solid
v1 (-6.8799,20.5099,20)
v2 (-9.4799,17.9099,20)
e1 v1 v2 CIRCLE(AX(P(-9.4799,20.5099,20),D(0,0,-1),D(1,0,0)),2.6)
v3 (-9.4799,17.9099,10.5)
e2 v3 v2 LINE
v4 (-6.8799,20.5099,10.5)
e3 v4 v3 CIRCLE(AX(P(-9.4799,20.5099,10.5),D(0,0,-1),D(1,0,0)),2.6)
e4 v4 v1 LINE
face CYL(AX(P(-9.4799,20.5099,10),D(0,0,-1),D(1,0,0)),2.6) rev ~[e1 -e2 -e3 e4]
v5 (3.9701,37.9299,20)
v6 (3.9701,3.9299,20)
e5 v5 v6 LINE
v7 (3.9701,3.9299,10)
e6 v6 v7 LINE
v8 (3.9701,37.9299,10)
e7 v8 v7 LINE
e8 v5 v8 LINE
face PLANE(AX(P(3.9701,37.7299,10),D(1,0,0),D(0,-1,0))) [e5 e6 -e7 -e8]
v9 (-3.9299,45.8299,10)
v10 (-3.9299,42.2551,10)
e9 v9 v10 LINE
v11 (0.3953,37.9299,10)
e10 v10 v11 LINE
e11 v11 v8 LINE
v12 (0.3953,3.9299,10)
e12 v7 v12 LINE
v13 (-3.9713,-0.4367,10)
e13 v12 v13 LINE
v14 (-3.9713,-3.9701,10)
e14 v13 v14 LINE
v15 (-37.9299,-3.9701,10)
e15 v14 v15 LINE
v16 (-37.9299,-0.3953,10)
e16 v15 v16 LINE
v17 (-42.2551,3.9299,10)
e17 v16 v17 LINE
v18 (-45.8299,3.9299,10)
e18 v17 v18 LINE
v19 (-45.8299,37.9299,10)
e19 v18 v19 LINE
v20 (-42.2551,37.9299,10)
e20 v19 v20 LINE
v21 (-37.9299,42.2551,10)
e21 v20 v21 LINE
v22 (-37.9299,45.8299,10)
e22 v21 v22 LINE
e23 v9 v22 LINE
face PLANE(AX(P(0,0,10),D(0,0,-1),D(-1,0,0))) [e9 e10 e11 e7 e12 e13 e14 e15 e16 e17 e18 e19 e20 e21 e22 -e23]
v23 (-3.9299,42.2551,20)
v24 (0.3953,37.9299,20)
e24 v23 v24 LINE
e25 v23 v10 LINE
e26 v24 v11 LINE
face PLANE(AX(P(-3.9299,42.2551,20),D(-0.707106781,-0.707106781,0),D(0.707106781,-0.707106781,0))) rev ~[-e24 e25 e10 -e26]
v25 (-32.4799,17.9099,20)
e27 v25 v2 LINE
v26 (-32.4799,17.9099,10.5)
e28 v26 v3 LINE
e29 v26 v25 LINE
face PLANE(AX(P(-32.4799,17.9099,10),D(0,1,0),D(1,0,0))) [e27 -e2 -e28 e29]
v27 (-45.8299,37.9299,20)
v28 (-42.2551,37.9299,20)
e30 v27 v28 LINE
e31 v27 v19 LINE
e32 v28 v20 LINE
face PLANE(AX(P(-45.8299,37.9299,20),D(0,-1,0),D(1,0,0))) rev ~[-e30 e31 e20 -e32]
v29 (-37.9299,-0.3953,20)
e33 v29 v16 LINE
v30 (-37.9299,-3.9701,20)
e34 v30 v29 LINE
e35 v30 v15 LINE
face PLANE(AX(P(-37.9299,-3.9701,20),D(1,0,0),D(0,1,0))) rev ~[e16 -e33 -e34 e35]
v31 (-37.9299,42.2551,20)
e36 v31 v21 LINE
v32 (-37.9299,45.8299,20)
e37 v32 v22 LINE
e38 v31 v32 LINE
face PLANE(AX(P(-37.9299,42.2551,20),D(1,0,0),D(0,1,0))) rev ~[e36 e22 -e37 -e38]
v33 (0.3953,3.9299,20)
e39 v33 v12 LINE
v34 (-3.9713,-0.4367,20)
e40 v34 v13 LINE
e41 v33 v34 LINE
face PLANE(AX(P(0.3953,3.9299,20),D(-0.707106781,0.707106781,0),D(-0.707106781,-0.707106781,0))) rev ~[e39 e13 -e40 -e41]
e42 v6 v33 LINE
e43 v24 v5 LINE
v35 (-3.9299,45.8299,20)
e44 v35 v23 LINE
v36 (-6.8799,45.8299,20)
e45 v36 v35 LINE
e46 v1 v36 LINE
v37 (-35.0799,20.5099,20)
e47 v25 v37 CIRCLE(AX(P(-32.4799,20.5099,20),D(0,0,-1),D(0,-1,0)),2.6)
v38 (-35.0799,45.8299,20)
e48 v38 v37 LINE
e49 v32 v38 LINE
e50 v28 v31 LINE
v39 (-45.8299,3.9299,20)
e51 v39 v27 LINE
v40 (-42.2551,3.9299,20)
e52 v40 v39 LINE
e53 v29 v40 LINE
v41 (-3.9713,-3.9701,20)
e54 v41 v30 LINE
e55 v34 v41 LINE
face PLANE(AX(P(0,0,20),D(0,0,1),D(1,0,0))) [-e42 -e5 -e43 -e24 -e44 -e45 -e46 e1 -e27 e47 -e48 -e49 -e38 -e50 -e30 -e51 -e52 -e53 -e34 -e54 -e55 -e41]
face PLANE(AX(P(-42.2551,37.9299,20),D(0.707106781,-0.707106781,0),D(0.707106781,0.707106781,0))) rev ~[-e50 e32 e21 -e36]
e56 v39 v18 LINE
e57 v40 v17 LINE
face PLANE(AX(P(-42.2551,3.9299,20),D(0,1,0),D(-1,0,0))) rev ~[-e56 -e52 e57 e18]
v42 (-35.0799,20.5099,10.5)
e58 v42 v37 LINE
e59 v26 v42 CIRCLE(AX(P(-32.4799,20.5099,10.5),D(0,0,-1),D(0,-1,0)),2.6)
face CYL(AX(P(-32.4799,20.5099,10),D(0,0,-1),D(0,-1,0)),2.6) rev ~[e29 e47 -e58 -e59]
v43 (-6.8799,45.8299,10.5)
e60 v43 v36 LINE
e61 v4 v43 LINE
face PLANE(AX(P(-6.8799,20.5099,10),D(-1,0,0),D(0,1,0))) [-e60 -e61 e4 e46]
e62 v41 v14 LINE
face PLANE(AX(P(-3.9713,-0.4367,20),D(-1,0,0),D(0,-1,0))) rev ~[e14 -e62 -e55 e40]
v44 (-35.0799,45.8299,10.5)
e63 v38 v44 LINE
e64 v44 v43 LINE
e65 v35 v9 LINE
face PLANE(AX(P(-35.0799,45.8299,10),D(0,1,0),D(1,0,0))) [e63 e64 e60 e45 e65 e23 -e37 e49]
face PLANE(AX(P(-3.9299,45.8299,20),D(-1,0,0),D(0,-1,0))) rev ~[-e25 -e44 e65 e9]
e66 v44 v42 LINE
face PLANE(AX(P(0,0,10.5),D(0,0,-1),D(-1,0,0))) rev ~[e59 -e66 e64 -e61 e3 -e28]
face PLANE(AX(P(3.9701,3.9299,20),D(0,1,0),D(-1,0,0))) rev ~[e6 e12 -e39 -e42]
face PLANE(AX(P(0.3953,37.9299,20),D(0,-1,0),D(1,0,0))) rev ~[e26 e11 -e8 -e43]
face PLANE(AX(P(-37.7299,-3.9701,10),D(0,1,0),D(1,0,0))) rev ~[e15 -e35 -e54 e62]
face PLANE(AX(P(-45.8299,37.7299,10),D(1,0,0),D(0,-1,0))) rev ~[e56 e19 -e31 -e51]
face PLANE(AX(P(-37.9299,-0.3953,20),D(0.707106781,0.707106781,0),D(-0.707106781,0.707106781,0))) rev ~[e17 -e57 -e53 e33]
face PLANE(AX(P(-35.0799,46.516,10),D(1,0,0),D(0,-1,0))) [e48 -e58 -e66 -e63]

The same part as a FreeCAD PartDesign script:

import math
import FreeCAD as App
import Part
import Sketcher

V = App.Vector
Q = App.Units.Quantity


def add_polygon(sketch, points):
    """Adds a closed chain of lines whose ends are joined by coincident constraints."""
    first, n = sketch.GeometryCount, len(points)
    for a, b in zip(points, points[1:] + points[:1]):
        sketch.addGeometry(Part.LineSegment(App.Vector(*a, 0), App.Vector(*b, 0)), False)
    for i in range(n):
        sketch.addConstraint(Sketcher.Constraint("Coincident", first + i, 2, first + (i + 1) % n, 1))

doc = App.newDocument("Part")
body = doc.addObject("PartDesign::Body", "Body")

# Sketch on XY plane
sketch1 = doc.addObject("Sketcher::SketchObject", "Sketch")
body.addObject(sketch1)
sketch1.AttachmentSupport = (doc.XY_Plane, [""])
sketch1.MapMode = "FlatFace"
sketch1.AttachmentOffset = App.Placement(V(0, 0, 10), App.Rotation())
add_polygon(sketch1, [(-4.171, -0.354), (0.312, 4.13), (3.97, 4.13), (3.97, 37.73), (0.312, 37.73), (-4.13, 42.172), (-4.13, 45.83), (-37.73, 45.83), (-37.73, 42.172), (-42.172, 37.73), (-45.83, 37.73), (-45.83, 4.13), (-42.172, 4.13), (-37.689, -0.354), (-37.73, -0.354), (-37.73, -3.97), (-4.171, -3.97)])  # lines 0-16
sketch1.addConstraint([
    Sketcher.Constraint("Horizontal", 1),
    Sketcher.Constraint("Vertical", 2),
    Sketcher.Constraint("Horizontal", 3),
    Sketcher.Constraint("Vertical", 5),
    Sketcher.Constraint("Horizontal", 6),
    Sketcher.Constraint("Vertical", 7),
    Sketcher.Constraint("Horizontal", 9),
    Sketcher.Constraint("Vertical", 10),
    Sketcher.Constraint("Horizontal", 11),
    Sketcher.Constraint("Horizontal", 13),
    Sketcher.Constraint("Vertical", 14),
    Sketcher.Constraint("Horizontal", 15),
    Sketcher.Constraint("Vertical", 16),
    Sketcher.Constraint("Perpendicular", 0, 4),
    Sketcher.Constraint("Perpendicular", 4, 8),
    Sketcher.Constraint("Perpendicular", 8, 12),
    Sketcher.Constraint("Horizontal", 4, 2, 7, 2),
    Sketcher.Constraint("Horizontal", 3, 2, 8, 2),
    Sketcher.Constraint("Horizontal", 1, 2, 10, 2),
    Sketcher.Constraint("Horizontal", 13, 2, 16, 2),
    Sketcher.Constraint("Vertical", 0, 2, 3, 2),
    Sketcher.Constraint("Vertical", 8, 2, 11, 2),
    Sketcher.Constraint("Vertical", 7, 2, 13, 2),
    Sketcher.Constraint("Equal", 3, 9),
    Sketcher.Constraint("Equal", 6, 2),
    Sketcher.Constraint("Equal", 11, 5),
    Sketcher.Constraint("Equal", 4, 8),
    Sketcher.Constraint("DistanceX", 6, 2, 6, 1, Q("33.6 mm")),
    Sketcher.Constraint("DistanceX", 4, 2, 2, 2, Q("8.1 mm")),
    Sketcher.Constraint("DistanceY", 14, 2, 11, 2, Q("8.1 mm")),
    Sketcher.Constraint("DistanceY", -1, 1, 0, 2, Q("4.13 mm")),
    Sketcher.Constraint("DistanceX", -1, 1, 1, 2, Q("3.97 mm")),
    Sketcher.Constraint("Distance", 0, Q("6.341 mm")),
    Sketcher.Constraint("DistanceX", 1, 1, 1, 2, Q("3.6577 mm")),
])
pad1 = doc.addObject("PartDesign::Pad", "Pad")
body.addObject(pad1)
pad1.Profile = sketch1
pad1.Length = 10

# Sketch on XY plane
sketch2 = doc.addObject("Sketcher::SketchObject", "Sketch001")
body.addObject(sketch2)
sketch2.AttachmentSupport = (doc.XY_Plane, [""])
sketch2.MapMode = "FlatFace"
sketch2.AttachmentOffset = App.Placement(V(0, 0, 20), App.Rotation())
add_polygon(sketch2, [(3.97, 3.93), (3.97, 4.13), (0.312, 4.13), (-4.171, -0.354), (-4.171, -3.97), (-3.971, -3.97), (-3.971, -0.437), (0.395, 3.93)])  # lines 0-7
add_polygon(sketch2, [(-3.93, 45.83), (-4.13, 45.83), (-4.13, 42.172), (0.312, 37.73), (3.97, 37.73), (3.97, 37.93), (0.395, 37.93), (-3.93, 42.255)])  # lines 8-15
add_polygon(sketch2, [(-42.172, 37.73), (-37.73, 42.172), (-37.73, 45.83), (-37.93, 45.83), (-37.93, 42.255), (-42.255, 37.93), (-45.83, 37.93), (-45.83, 37.73)])  # lines 16-23
add_polygon(sketch2, [(-42.172, 4.13), (-45.83, 4.13), (-45.83, 3.93), (-42.255, 3.93), (-37.93, -0.395), (-37.93, -3.97), (-37.73, -3.97), (-37.73, -0.354), (-37.688, -0.354)])  # lines 24-32
sketch2.addConstraint([
    Sketcher.Constraint("Vertical", 0),
    Sketcher.Constraint("Horizontal", 1),
    Sketcher.Constraint("Vertical", 3),
    Sketcher.Constraint("Horizontal", 4),
    Sketcher.Constraint("Vertical", 5),
    Sketcher.Constraint("Horizontal", 7),
    Sketcher.Constraint("Horizontal", 8),
    Sketcher.Constraint("Vertical", 9),
    Sketcher.Constraint("Horizontal", 11),
    Sketcher.Constraint("Vertical", 12),
    Sketcher.Constraint("Horizontal", 13),
    Sketcher.Constraint("Vertical", 15),
    Sketcher.Constraint("Vertical", 17),
    Sketcher.Constraint("Horizontal", 18),
    Sketcher.Constraint("Vertical", 19),
    Sketcher.Constraint("Horizontal", 21),
    Sketcher.Constraint("Vertical", 22),
    Sketcher.Constraint("Horizontal", 23),
    Sketcher.Constraint("Horizontal", 24),
    Sketcher.Constraint("Vertical", 25),
    Sketcher.Constraint("Horizontal", 26),
    Sketcher.Constraint("Vertical", 28),
    Sketcher.Constraint("Horizontal", 29),
    Sketcher.Constraint("Vertical", 30),
    Sketcher.Constraint("Horizontal", 31),
    Sketcher.Constraint("Parallel", 2, 6),
    Sketcher.Constraint("Perpendicular", 6, 10),
    Sketcher.Constraint("Parallel", 10, 14),
    Sketcher.Constraint("Perpendicular", 14, 16),
    Sketcher.Constraint("Parallel", 16, 20),
    Sketcher.Constraint("Perpendicular", 20, 27),
    Sketcher.Constraint("Parallel", 27, 32),
    Sketcher.Constraint("Horizontal", 9, 2, 16, 2),
    Sketcher.Constraint("Horizontal", 15, 2, 17, 2),
    Sketcher.Constraint("Horizontal", 14, 2, 19, 2),
    Sketcher.Constraint("Horizontal", 13, 2, 20, 2),
    Sketcher.Constraint("Horizontal", 11, 2, 22, 2),
    Sketcher.Constraint("Horizontal", 1, 2, 24, 2),
    Sketcher.Constraint("Horizontal", 7, 2, 25, 2),
    Sketcher.Constraint("Horizontal", 4, 2, 28, 2),
    Sketcher.Constraint("Horizontal", 2, 2, 30, 2),
    Sketcher.Constraint("Vertical", 1, 2, 10, 2),
    Sketcher.Constraint("Vertical", 7, 2, 11, 2),
    Sketcher.Constraint("Vertical", 6, 2, 13, 2),
    Sketcher.Constraint("Vertical", 22, 2, 24, 2),
    Sketcher.Constraint("Vertical", 20, 2, 26, 2),
    Sketcher.Constraint("Vertical", 19, 2, 27, 2),
    Sketcher.Constraint("Vertical", 17, 2, 29, 2),
    Sketcher.Constraint("Vertical", 23, 2, 32, 2),
    Sketcher.Constraint("Equal", 4, 8),
    Sketcher.Constraint("Equal", 8, 18),
    Sketcher.Constraint("Equal", 13, 21),
    Sketcher.Constraint("Equal", 11, 23),
    Sketcher.Constraint("Equal", 29, 0),
    Sketcher.Constraint("Equal", 24, 9),
    Sketcher.Constraint("Equal", 0, 12),
    Sketcher.Constraint("Equal", 19, 28),
    Sketcher.Constraint("DistanceX", 4, 1, 4, 2, Q("0.2 mm")),
    Sketcher.Constraint("DistanceX", 18, 2, 15, 2, Q("34 mm")),
    Sketcher.Constraint("DistanceY", 25, 2, 21, 2, Q("34 mm")),
    Sketcher.Constraint("DistanceY", 3, 2, 1, 2, Q("8.1 mm")),
    Sketcher.Constraint("DistanceX", -1, 1, 0, 2, Q("3.97 mm")),
    Sketcher.Constraint("DistanceY", -1, 1, 0, 2, Q("4.13 mm")),
    Sketcher.Constraint("Distance", 2, Q("6.341 mm")),
    Sketcher.Constraint("DistanceX", 1, 2, 1, 1, Q("3.6577 mm")),
    Sketcher.Constraint("DistanceX", 7, 1, 7, 2, Q("3.5748 mm")),
])
pad2 = doc.addObject("PartDesign::Pad", "Pad001")
body.addObject(pad2)
pad2.Profile = sketch2
pad2.Length = 10
pad2.Reversed = True

# Sketch on XY plane
sketch3 = doc.addObject("Sketcher::SketchObject", "Sketch002")
body.addObject(sketch3)
sketch3.AttachmentSupport = (doc.XY_Plane, [""])
sketch3.MapMode = "FlatFace"
sketch3.AttachmentOffset = App.Placement(V(0, 0, 10), App.Rotation())
sketch3.addGeometry([
    Part.LineSegment(V(-9.5, 17.9, 0), V(-32.5, 17.9, 0)),  # 0
    Part.ArcOfCircle(Part.Circle(V(-32.5, 20.5, 0), V(0, 0, 1), 2.6), math.radians(180), math.radians(270)),  # 1
    Part.LineSegment(V(-35.1, 20.5, 0), V(-35.1, 46.5, 0)),  # 2
    Part.LineSegment(V(-35.1, 46.5, 0), V(-6.9, 46.5, 0)),  # 3
    Part.LineSegment(V(-6.9, 46.5, 0), V(-6.9, 20.5, 0)),  # 4
    Part.ArcOfCircle(Part.Circle(V(-9.5, 20.5, 0), V(0, 0, 1), 2.6), math.radians(-90), math.radians(0)),  # 5
], False)
sketch3.addConstraint([
    Sketcher.Constraint("Tangent", 0, 2, 1, 2),
    Sketcher.Constraint("Tangent", 1, 1, 2, 1),
    Sketcher.Constraint("Coincident", 2, 2, 3, 1),
    Sketcher.Constraint("Coincident", 3, 2, 4, 1),
    Sketcher.Constraint("Tangent", 4, 2, 5, 2),
    Sketcher.Constraint("Tangent", 5, 1, 0, 1),
    Sketcher.Constraint("Horizontal", 0),
    Sketcher.Constraint("Vertical", 2),
    Sketcher.Constraint("Horizontal", 3),
    Sketcher.Constraint("Vertical", 4),
    Sketcher.Constraint("Equal", 1, 5),
    Sketcher.Constraint("Radius", 1, Q("2.6 mm")),
    Sketcher.Constraint("DistanceX", 0, 2, 0, 1, Q("23 mm")),
    Sketcher.Constraint("DistanceY", 2, 1, 2, 2, Q("26.006 mm")),
    Sketcher.Constraint("DistanceX", 1, 3, -1, 1, Q("32.48 mm")),
    Sketcher.Constraint("DistanceY", -1, 1, 1, 3, Q("20.51 mm")),
])
pocket1 = doc.addObject("PartDesign::Pocket", "Pocket")
body.addObject(pocket1)
pocket1.Profile = sketch3
pocket1.Length = 10
pocket1.Reversed = True

# Sketch on XY plane
sketch4 = doc.addObject("Sketcher::SketchObject", "Sketch003")
body.addObject(sketch4)
sketch4.AttachmentSupport = (doc.XY_Plane, [""])
sketch4.MapMode = "FlatFace"
sketch4.AttachmentOffset = App.Placement(V(0, 0, 10), App.Rotation())
sketch4.addGeometry([
    Part.LineSegment(V(-35.1, 20.5, 0), V(-35.1, 45.8, 0)),  # 0
    Part.LineSegment(V(-35.1, 45.8, 0), V(-6.9, 45.8, 0)),  # 1
    Part.LineSegment(V(-6.9, 45.8, 0), V(-6.9, 20.5, 0)),  # 2
    Part.ArcOfCircle(Part.Circle(V(-9.5, 20.5, 0), V(0, 0, 1), 2.6), math.radians(-90), math.radians(0)),  # 3
    Part.LineSegment(V(-9.5, 17.9, 0), V(-32.5, 17.9, 0)),  # 4
    Part.ArcOfCircle(Part.Circle(V(-32.5, 20.5, 0), V(0, 0, 1), 2.6), math.radians(180), math.radians(270)),  # 5
], False)
sketch4.addConstraint([
    Sketcher.Constraint("Coincident", 0, 2, 1, 1),
    Sketcher.Constraint("Coincident", 1, 2, 2, 1),
    Sketcher.Constraint("Tangent", 2, 2, 3, 2),
    Sketcher.Constraint("Tangent", 3, 1, 4, 1),
    Sketcher.Constraint("Tangent", 4, 2, 5, 2),
    Sketcher.Constraint("Tangent", 5, 1, 0, 1),
    Sketcher.Constraint("Vertical", 0),
    Sketcher.Constraint("Horizontal", 1),
    Sketcher.Constraint("Vertical", 2),
    Sketcher.Constraint("Horizontal", 4),
    Sketcher.Constraint("Equal", 3, 5),
    Sketcher.Constraint("Radius", 3, Q("2.6 mm")),
    Sketcher.Constraint("DistanceX", 4, 2, 4, 1, Q("23 mm")),
    Sketcher.Constraint("DistanceY", 0, 1, 0, 2, Q("25.32 mm")),
    Sketcher.Constraint("DistanceX", 3, 3, -1, 1, Q("9.48 mm")),
    Sketcher.Constraint("DistanceY", -1, 1, 3, 3, Q("20.51 mm")),
])
pad3 = doc.addObject("PartDesign::Pad", "Pad002")
body.addObject(pad3)
pad3.Profile = sketch4
pad3.Length = 0.5

doc.recompute()
